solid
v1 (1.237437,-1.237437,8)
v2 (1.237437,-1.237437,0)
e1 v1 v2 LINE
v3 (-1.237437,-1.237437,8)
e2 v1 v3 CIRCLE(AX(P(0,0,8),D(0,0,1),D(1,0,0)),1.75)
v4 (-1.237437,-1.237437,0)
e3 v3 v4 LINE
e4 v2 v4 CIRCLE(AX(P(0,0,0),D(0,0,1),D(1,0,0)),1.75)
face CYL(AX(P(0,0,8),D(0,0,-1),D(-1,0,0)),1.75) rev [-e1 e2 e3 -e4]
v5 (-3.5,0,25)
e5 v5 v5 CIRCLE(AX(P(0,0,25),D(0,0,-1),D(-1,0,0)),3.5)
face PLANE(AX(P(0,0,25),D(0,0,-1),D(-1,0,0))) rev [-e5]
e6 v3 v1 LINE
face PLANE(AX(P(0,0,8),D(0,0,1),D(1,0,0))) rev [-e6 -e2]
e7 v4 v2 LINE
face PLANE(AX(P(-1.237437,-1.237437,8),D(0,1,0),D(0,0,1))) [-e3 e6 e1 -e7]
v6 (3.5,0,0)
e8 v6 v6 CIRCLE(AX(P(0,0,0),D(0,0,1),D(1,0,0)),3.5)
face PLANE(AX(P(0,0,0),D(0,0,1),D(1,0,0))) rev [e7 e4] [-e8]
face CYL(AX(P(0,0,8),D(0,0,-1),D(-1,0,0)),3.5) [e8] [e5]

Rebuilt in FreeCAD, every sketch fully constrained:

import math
import FreeCAD as App
import Part
import Sketcher
Q = App.Units.Quantity


def edges_at(feature, points):
    """Names of the edges that pass closest to the given points."""
    edges = feature.Shape.Edges
    near = lambda p: min(range(len(edges)), key=lambda i: edges[i].distToShape(Part.Vertex(*p))[0])
    return sorted({f"Edge{near(p) + 1}" for p in points})

doc = App.newDocument("Part")
body = doc.addObject("PartDesign::Body", "Body")

# Sketch on XY plane
sketch1 = body.newObject("Sketcher::SketchObject", "Sketch")
sketch1.AttachmentSupport = (doc.getObject("XY_Plane"), [""])
sketch1.MapMode = "FlatFace"
sketch1.addGeometry([
    Part.Circle(App.Vector(0, 0, 0), App.Vector(0, 0, 1), 3.5),
    Part.LineSegment(App.Vector(1.237437, -1.237437, 0), App.Vector(-1.237437, -1.237437, 0)),
    Part.ArcOfCircle(Part.Circle(App.Vector(0, 0, 0), App.Vector(0, 0, 1), 1.75), math.radians(-45), math.radians(225)),
], False)
sketch1.addConstraint([
    Sketcher.Constraint("Coincident", 1, 1, 2, 1),
    Sketcher.Constraint("Coincident", 2, 2, 1, 2),
    Sketcher.Constraint("Horizontal", 1),
    Sketcher.Constraint("Coincident", 0, 3, -1, 1),
    Sketcher.Constraint("Coincident", 2, 3, -1, 1),
    Sketcher.Constraint("Diameter", 0, Q("7 mm")),
    Sketcher.Constraint("Radius", 2, Q("1.75 mm")),
    Sketcher.Constraint("DistanceX", 1, 2, 1, 1, Q("2.474874 mm")),
])
pad1 = body.newObject("PartDesign::Pad", "Pad")
pad1.Profile = sketch1
pad1.Length = 8

# Sketch on XY plane
sketch2 = body.newObject("Sketcher::SketchObject", "Sketch001")
sketch2.AttachmentSupport = (doc.getObject("XY_Plane"), [""])
sketch2.MapMode = "FlatFace"
sketch2.AttachmentOffset = App.Placement(App.Vector(0, 0, 8), App.Rotation())
sketch2.addGeometry(Part.Circle(App.Vector(0, 0, 0), App.Vector(0, 0, 1), 3.5), False)
sketch2.addConstraint([
    Sketcher.Constraint("Coincident", 0, 3, -1, 1),
    Sketcher.Constraint("Diameter", 0, Q("7 mm")),
])
pad2 = body.newObject("PartDesign::Pad", "Pad001")
pad2.Profile = sketch2
pad2.Length = 18

# Sketch on XY plane
sketch3 = body.newObject("Sketcher::SketchObject", "Sketch002")
sketch3.AttachmentSupport = (doc.getObject("XY_Plane"), [""])
sketch3.MapMode = "FlatFace"
sketch3.AttachmentOffset = App.Placement(App.Vector(0, 0, 26), App.Rotation())
sketch3.addGeometry([
    Part.LineSegment(App.Vector(-6.25, 4, 0), App.Vector(-6.25, -4, 0)),  # 0
    Part.LineSegment(App.Vector(-6.25, -4, 0), App.Vector(6.25, -4, 0)),  # 1
    Part.LineSegment(App.Vector(6.25, -4, 0), App.Vector(6.25, 4, 0)),  # 2
    Part.LineSegment(App.Vector(6.25, 4, 0), App.Vector(-6.25, 4, 0)),  # 3
    Part.LineSegment(App.Vector(4.25, -2, 0), App.Vector(-4.25, -2, 0)),  # 4
    Part.LineSegment(App.Vector(-4.25, -2, 0), App.Vector(-4.25, 2, 0)),  # 5
    Part.LineSegment(App.Vector(-4.25, 2, 0), App.Vector(4.25, 2, 0)),  # 6
    Part.LineSegment(App.Vector(4.25, 2, 0), App.Vector(4.25, -2, 0)),  # 7
], False)
sketch3.addConstraint([
    Sketcher.Constraint("Coincident", 0, 2, 1, 1),
    Sketcher.Constraint("Coincident", 1, 2, 2, 1),
    Sketcher.Constraint("Coincident", 2, 2, 3, 1),
    Sketcher.Constraint("Coincident", 3, 2, 0, 1),
    Sketcher.Constraint("Coincident", 4, 2, 5, 1),
    Sketcher.Constraint("Coincident", 5, 2, 6, 1),
    Sketcher.Constraint("Coincident", 6, 2, 7, 1),
    Sketcher.Constraint("Coincident", 7, 2, 4, 1),
    Sketcher.Constraint("Vertical", 0),
    Sketcher.Constraint("Horizontal", 1),
    Sketcher.Constraint("Vertical", 2),
    Sketcher.Constraint("Horizontal", 3),
    Sketcher.Constraint("Horizontal", 4),
    Sketcher.Constraint("Vertical", 5),
    Sketcher.Constraint("Horizontal", 6),
    Sketcher.Constraint("Vertical", 7),
    Sketcher.Constraint("Symmetric", 0, 2, 2, 2, -1, 1),
    Sketcher.Constraint("Symmetric", 4, 2, 6, 2, -1, 1),
    Sketcher.Constraint("DistanceY", 0, 2, 0, 1, Q("8 mm")),
    Sketcher.Constraint("DistanceY", 5, 1, 5, 2, Q("4 mm")),
    Sketcher.Constraint("DistanceX", 1, 1, 1, 2, Q("12.5 mm")),
    Sketcher.Constraint("DistanceX", 4, 2, 4, 1, Q("8.5 mm")),
])
pad3 = body.newObject("PartDesign::Pad", "Pad002")
pad3.Profile = sketch3
pad3.Length = 10

# Sketch on XY plane
sketch4 = body.newObject("Sketcher::SketchObject", "Sketch003")
sketch4.AttachmentSupport = (doc.getObject("XY_Plane"), [""])
sketch4.MapMode = "FlatFace"
sketch4.AttachmentOffset = App.Placement(App.Vector(0, 0, 26), App.Rotation())
sketch4.addGeometry([
    Part.LineSegment(App.Vector(6.25, 4, 0), App.Vector(6.25, -4, 0)),
    Part.LineSegment(App.Vector(6.25, -4, 0), App.Vector(-6.25, -4, 0)),
    Part.LineSegment(App.Vector(-6.25, -4, 0), App.Vector(-6.25, 4, 0)),
    Part.LineSegment(App.Vector(-6.25, 4, 0), App.Vector(6.25, 4, 0)),
], False)
sketch4.addConstraint([
    Sketcher.Constraint("Coincident", 0, 2, 1, 1),
    Sketcher.Constraint("Coincident", 1, 2, 2, 1),
    Sketcher.Constraint("Coincident", 2, 2, 3, 1),
    Sketcher.Constraint("Coincident", 3, 2, 0, 1),
    Sketcher.Constraint("Vertical", 0),
    Sketcher.Constraint("Horizontal", 1),
    Sketcher.Constraint("Vertical", 2),
    Sketcher.Constraint("Horizontal", 3),
    Sketcher.Constraint("Symmetric", 0, 2, 2, 2, -1, 1),
    Sketcher.Constraint("DistanceY", 0, 2, 0, 1, Q("8 mm")),
    Sketcher.Constraint("DistanceX", 1, 2, 1, 1, Q("12.5 mm")),
])
pad4 = body.newObject("PartDesign::Pad", "Pad003")
pad4.Profile = sketch4
pad4.Length = 1
pad4.Reversed = True
doc.recompute()

fillet = body.newObject("PartDesign::Fillet", "Fillet")
fillet.Base = (pad4, edges_at(pad4, [
    (-6.25, -4, 30.5),
    (6.25, -4, 30.5),
    (6.25, 4, 30.5),
    (-6.25, 4, 30.5),
]))
fillet.Radius = 2

# Sketch on XY plane
sketch5 = body.newObject("Sketcher::SketchObject", "Sketch004")
sketch5.AttachmentSupport = (doc.getObject("XY_Plane"), [""])
sketch5.MapMode = "FlatFace"
sketch5.AttachmentOffset = App.Placement(App.Vector(0, 0, 25), App.Rotation())
sketch5.addGeometry([
    Part.LineSegment(App.Vector(8.167391, 4.379708, 0), App.Vector(8.167391, -4.92076, 0)),
    Part.LineSegment(App.Vector(8.167391, -4.92076, 0), App.Vector(-7.209743, -4.92076, 0)),
    Part.LineSegment(App.Vector(-7.209743, -4.92076, 0), App.Vector(-7.209743, 4.379708, 0)),
    Part.LineSegment(App.Vector(-7.209743, 4.379708, 0), App.Vector(8.167391, 4.379708, 0)),
], False)
sketch5.addConstraint([
    Sketcher.Constraint("Coincident", 0, 2, 1, 1),
    Sketcher.Constraint("Coincident", 1, 2, 2, 1),
    Sketcher.Constraint("Coincident", 2, 2, 3, 1),
    Sketcher.Constraint("Coincident", 3, 2, 0, 1),
    Sketcher.Constraint("Vertical", 0),
    Sketcher.Constraint("Horizontal", 1),
    Sketcher.Constraint("Vertical", 2),
    Sketcher.Constraint("Horizontal", 3),
    Sketcher.Constraint("DistanceY", 0, 2, 0, 1, Q("9.300468 mm")),
    Sketcher.Constraint("DistanceX", 1, 2, 1, 1, Q("15.377134 mm")),
    Sketcher.Constraint("DistanceX", -1, 1, 0, 2, Q("8.167391 mm")),
    Sketcher.Constraint("DistanceY", 0, 2, -1, 1, Q("4.92076 mm")),
])
pocket1 = body.newObject("PartDesign::Pocket", "Pocket")
pocket1.Profile = sketch5
pocket1.Type = "ThroughAll"
pocket1.Reversed = True

doc.recompute()
